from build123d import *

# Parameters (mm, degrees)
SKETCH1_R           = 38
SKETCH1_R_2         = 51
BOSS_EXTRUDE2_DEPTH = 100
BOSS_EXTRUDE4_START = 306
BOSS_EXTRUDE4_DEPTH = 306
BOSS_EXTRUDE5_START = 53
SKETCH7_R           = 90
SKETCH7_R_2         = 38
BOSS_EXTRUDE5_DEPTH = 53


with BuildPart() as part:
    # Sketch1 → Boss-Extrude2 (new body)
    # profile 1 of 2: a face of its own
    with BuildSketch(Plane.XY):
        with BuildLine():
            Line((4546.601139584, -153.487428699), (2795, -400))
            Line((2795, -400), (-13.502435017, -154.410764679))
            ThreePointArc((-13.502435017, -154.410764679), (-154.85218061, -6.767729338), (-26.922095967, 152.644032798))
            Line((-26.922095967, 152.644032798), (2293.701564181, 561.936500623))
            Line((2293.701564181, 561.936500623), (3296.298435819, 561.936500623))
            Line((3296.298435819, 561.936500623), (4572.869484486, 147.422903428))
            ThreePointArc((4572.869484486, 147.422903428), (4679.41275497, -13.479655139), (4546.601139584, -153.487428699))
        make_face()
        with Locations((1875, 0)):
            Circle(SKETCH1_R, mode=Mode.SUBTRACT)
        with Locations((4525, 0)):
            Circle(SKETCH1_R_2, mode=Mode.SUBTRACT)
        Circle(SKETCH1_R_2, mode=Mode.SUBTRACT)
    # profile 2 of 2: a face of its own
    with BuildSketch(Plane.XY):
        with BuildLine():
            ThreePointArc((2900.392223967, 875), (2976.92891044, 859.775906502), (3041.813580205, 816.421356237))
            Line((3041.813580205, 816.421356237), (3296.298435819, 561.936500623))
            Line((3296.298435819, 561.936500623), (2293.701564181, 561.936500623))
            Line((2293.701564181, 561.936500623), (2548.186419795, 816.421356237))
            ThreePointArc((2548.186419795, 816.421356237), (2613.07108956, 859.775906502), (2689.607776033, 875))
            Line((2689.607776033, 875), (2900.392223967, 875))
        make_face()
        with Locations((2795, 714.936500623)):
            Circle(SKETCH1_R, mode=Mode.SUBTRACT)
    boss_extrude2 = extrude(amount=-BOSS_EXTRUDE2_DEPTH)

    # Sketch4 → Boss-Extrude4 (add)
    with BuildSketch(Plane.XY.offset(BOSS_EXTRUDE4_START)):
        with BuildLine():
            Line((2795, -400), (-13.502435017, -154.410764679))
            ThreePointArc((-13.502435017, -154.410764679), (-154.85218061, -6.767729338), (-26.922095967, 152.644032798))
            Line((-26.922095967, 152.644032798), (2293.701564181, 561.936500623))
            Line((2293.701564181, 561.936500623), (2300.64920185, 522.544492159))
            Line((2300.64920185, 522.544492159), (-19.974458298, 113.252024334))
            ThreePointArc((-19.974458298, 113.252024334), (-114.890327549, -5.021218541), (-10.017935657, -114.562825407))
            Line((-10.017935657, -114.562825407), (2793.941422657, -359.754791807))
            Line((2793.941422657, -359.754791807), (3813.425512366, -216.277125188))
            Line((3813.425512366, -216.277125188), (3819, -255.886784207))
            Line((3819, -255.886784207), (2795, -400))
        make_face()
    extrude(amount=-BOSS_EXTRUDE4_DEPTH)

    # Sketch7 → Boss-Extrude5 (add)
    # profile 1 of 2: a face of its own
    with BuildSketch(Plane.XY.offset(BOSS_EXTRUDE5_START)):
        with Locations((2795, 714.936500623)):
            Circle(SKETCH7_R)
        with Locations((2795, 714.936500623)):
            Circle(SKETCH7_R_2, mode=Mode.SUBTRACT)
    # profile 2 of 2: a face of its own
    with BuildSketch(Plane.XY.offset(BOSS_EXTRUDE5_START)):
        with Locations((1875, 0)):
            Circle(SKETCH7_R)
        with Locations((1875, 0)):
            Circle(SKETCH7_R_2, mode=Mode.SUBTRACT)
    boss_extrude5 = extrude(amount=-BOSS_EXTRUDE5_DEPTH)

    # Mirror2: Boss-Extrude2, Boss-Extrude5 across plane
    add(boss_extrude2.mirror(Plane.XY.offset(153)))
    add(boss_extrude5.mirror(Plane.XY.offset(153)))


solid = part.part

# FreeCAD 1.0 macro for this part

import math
import FreeCAD as App
import Part
import Sketcher
from FreeCAD import Vector
Q = App.Units.Quantity

doc = App.newDocument("Part")
body = doc.addObject("PartDesign::Body", "Body")

# Sketch on XY plane
sketch1 = doc.addObject("Sketcher::SketchObject", "Sketch")
body.addObject(sketch1)
sketch1.AttachmentSupport = (doc.XY_Plane, [""])
sketch1.MapMode = "FlatFace"
sketch1.addGeometry([
    Part.LineSegment(Vector(2795, -400, 0), Vector(4547, -153, 0)),  # 0
    Part.ArcOfCircle(Part.Circle(Vector(4525, 0, 0), Vector(0, 0, 1), 155), math.radians(-82), math.radians(72)),  # 1
    Part.LineSegment(Vector(4573, 147, 0), Vector(3296, 562, 0)),  # 2
    Part.LineSegment(Vector(3296, 562, 0), Vector(3042, 816, 0)),  # 3
    Part.ArcOfCircle(Part.Circle(Vector(2900, 675, 0), Vector(0, 0, 1), 200), math.radians(45), math.radians(90)),  # 4
    Part.LineSegment(Vector(2900, 875, 0), Vector(2690, 875, 0)),  # 5
    Part.ArcOfCircle(Part.Circle(Vector(2690, 675, 0), Vector(0, 0, 1), 200), math.radians(90), math.radians(135)),  # 6
    Part.LineSegment(Vector(2548, 816, 0), Vector(2294, 562, 0)),  # 7
    Part.LineSegment(Vector(2294, 562, 0), Vector(-27, 153, 0)),  # 8
    Part.ArcOfCircle(Part.Circle(Vector(0, 0, 0), Vector(0, 0, 1), 155), math.radians(100), math.radians(265)),  # 9
    Part.LineSegment(Vector(-14, -154, 0), Vector(2795, -400, 0)),  # 10
    Part.Circle(Vector(4525, 0, 0), Vector(0, 0, 1), 51),  # 11
    Part.Circle(Vector(1875, 0, 0), Vector(0, 0, 1), 38),  # 12
    Part.Circle(Vector(0, 0, 0), Vector(0, 0, 1), 51),  # 13
    Part.Circle(Vector(2795, 715, 0), Vector(0, 0, 1), 38),  # 14
], False)
sketch1.addConstraint([
    Sketcher.Constraint("Tangent", 0, 2, 1, 1),
    Sketcher.Constraint("Tangent", 1, 2, 2, 1),
    Sketcher.Constraint("Coincident", 2, 2, 3, 1),
    Sketcher.Constraint("Tangent", 3, 2, 4, 1),
    Sketcher.Constraint("Tangent", 4, 2, 5, 1),
    Sketcher.Constraint("Tangent", 5, 2, 6, 1),
    Sketcher.Constraint("Tangent", 6, 2, 7, 1),
    Sketcher.Constraint("Coincident", 7, 2, 8, 1),
    Sketcher.Constraint("Tangent", 8, 2, 9, 1),
    Sketcher.Constraint("Tangent", 9, 2, 10, 1),
    Sketcher.Constraint("Coincident", 10, 2, 0, 1),
    Sketcher.Constraint("Horizontal", 5),
    Sketcher.Constraint("Coincident", 9, 3, -1, 1),
    Sketcher.Constraint("Coincident", 13, 3, -1, 1),
    Sketcher.Constraint("Coincident", 11, 3, 1, 3),
    Sketcher.Constraint("Equal", 4, 6),
    Sketcher.Constraint("Equal", 1, 9),
    Sketcher.Constraint("Equal", 11, 13),
    Sketcher.Constraint("Equal", 12, 14),
    Sketcher.Constraint("PointOnObject", 1, 3, -1),
    Sketcher.Constraint("PointOnObject", 12, 3, -1),
    Sketcher.Constraint("Perpendicular", 3, 7),
    Sketcher.Constraint("Horizontal", 3, 2, 6, 2),
    Sketcher.Constraint("Horizontal", 2, 2, 7, 2),
    Sketcher.Constraint("Vertical", 14, 3, 10, 2),
    Sketcher.Constraint("Diameter", 11, Q("102 mm")),
    Sketcher.Constraint("Diameter", 12, Q("76 mm")),
    Sketcher.Constraint("Radius", 1, Q("155 mm")),
    Sketcher.Constraint("Radius", 4, Q("200 mm")),
    Sketcher.Constraint("DistanceX", -1, 1, 1, 3, Q("4525 mm")),
    Sketcher.Constraint("DistanceY", -1, 1, 4, 3, Q("675 mm")),
    Sketcher.Constraint("DistanceX", -1, 1, 12, 3, Q("1875 mm")),
    Sketcher.Constraint("DistanceX", -1, 1, 14, 3, Q("2795 mm")),
    Sketcher.Constraint("DistanceY", 10, 2, -1, 1, Q("400 mm")),
    Sketcher.Constraint("DistanceY", 2, 2, 14, 3, Q("153 mm")),
    Sketcher.Constraint("DistanceX", 9, 2, 7, 2, Q("2307.203999 mm")),
    Sketcher.Constraint("DistanceY", -1, 1, 14, 3, Q("714.936501 mm")),
    Sketcher.Constraint("DistanceX", 5, 2, 5, 1, Q("210.784448 mm")),
])
pad1 = doc.addObject("PartDesign::Pad", "Pad")
body.addObject(pad1)
pad1.Profile = sketch1
pad1.Length = 100
pad1.Reversed = True

# Sketch on XY plane
sketch2 = doc.addObject("Sketcher::SketchObject", "Sketch001")
body.addObject(sketch2)
sketch2.AttachmentSupport = (doc.XY_Plane, [""])
sketch2.MapMode = "FlatFace"
sketch2.AttachmentOffset = App.Placement(Vector(0, 0, 306), App.Rotation())
sketch2.addGeometry([
    Part.LineSegment(Vector(-14, -154, 0), Vector(2795, -400, 0)),  # 0
    Part.LineSegment(Vector(2795, -400, 0), Vector(3819, -256, 0)),  # 1
    Part.LineSegment(Vector(3819, -256, 0), Vector(3813, -216, 0)),  # 2
    Part.LineSegment(Vector(3813, -216, 0), Vector(2794, -360, 0)),  # 3
    Part.LineSegment(Vector(2794, -360, 0), Vector(-10, -115, 0)),  # 4
    Part.ArcOfCircle(Part.Circle(Vector(0, 0, 0), Vector(0, 0, 1), 115), math.radians(100), math.radians(265)),  # 5
    Part.LineSegment(Vector(-20, 113, 0), Vector(2301, 523, 0)),  # 6
    Part.LineSegment(Vector(2301, 523, 0), Vector(2294, 562, 0)),  # 7
    Part.LineSegment(Vector(2294, 562, 0), Vector(-27, 153, 0)),  # 8
    Part.ArcOfCircle(Part.Circle(Vector(0, 0, 0), Vector(0, 0, 1), 155), math.radians(100), math.radians(265)),  # 9
], False)
sketch2.addConstraint([
    Sketcher.Constraint("Coincident", 0, 2, 1, 1),
    Sketcher.Constraint("Coincident", 1, 2, 2, 1),
    Sketcher.Constraint("Coincident", 2, 2, 3, 1),
    Sketcher.Constraint("Coincident", 3, 2, 4, 1),
    Sketcher.Constraint("Tangent", 4, 2, 5, 2),
    Sketcher.Constraint("Tangent", 5, 1, 6, 1),
    Sketcher.Constraint("Coincident", 6, 2, 7, 1),
    Sketcher.Constraint("Coincident", 7, 2, 8, 1),
    Sketcher.Constraint("Tangent", 8, 2, 9, 1),
    Sketcher.Constraint("Tangent", 9, 2, 0, 1),
    Sketcher.Constraint("Coincident", 5, 3, -1, 1),
    Sketcher.Constraint("Coincident", 9, 3, -1, 1),
    Sketcher.Constraint("Perpendicular", 1, 2),
    Sketcher.Constraint("Perpendicular", 2, 3),
    Sketcher.Constraint("Parallel", 0, 4),
    Sketcher.Constraint("Perpendicular", 6, 7),
    Sketcher.Constraint("Perpendicular", 7, 8),
    Sketcher.Constraint("Equal", 2, 7),
    Sketcher.Constraint("Radius", 5, Q("115 mm")),
    Sketcher.Constraint("Radius", 9, Q("155 mm")),
    Sketcher.Constraint("DistanceX", -1, 1, 0, 2, Q("2795 mm")),
    Sketcher.Constraint("DistanceY", 0, 2, -1, 1, Q("400 mm")),
    Sketcher.Constraint("DistanceX", -1, 1, 1, 2, Q("3819 mm")),
    Sketcher.Constraint("DistanceX", -1, 1, 6, 2, Q("2300.649202 mm")),
    Sketcher.Constraint("DistanceY", -1, 1, 7, 2, Q("561.936501 mm")),
    Sketcher.Constraint("DistanceY", 2, 2, 4, 2, Q("101.7143 mm")),
])
pad2 = doc.addObject("PartDesign::Pad", "Pad001")
body.addObject(pad2)
pad2.Profile = sketch2
pad2.Length = 306
pad2.Reversed = True

# Sketch on XY plane
sketch3 = doc.addObject("Sketcher::SketchObject", "Sketch002")
body.addObject(sketch3)
sketch3.AttachmentSupport = (doc.XY_Plane, [""])
sketch3.MapMode = "FlatFace"
sketch3.AttachmentOffset = App.Placement(Vector(0, 0, 53), App.Rotation())
sketch3.addGeometry([
    Part.Circle(Vector(2795, 715, 0), Vector(0, 0, 1), 90),
    Part.Circle(Vector(2795, 715, 0), Vector(0, 0, 1), 38),
    Part.Circle(Vector(1875, 0, 0), Vector(0, 0, 1), 90),
    Part.Circle(Vector(1875, 0, 0), Vector(0, 0, 1), 38),
], False)
sketch3.addConstraint([
    Sketcher.Constraint("Coincident", 1, 3, 0, 3),
    Sketcher.Constraint("Coincident", 3, 3, 2, 3),
    Sketcher.Constraint("Equal", 0, 2),
    Sketcher.Constraint("Equal", 1, 3),
    Sketcher.Constraint("PointOnObject", 2, 3, -1),
    Sketcher.Constraint("Diameter", 0, Q("180 mm")),
    Sketcher.Constraint("Diameter", 1, Q("76 mm")),
    Sketcher.Constraint("DistanceX", -1, 1, 0, 3, Q("2795 mm")),
    Sketcher.Constraint("DistanceX", -1, 1, 2, 3, Q("1875 mm")),
    Sketcher.Constraint("DistanceY", -1, 1, 0, 3, Q("714.936501 mm")),
])
pad3 = doc.addObject("PartDesign::Pad", "Pad002")
body.addObject(pad3)
pad3.Profile = sketch3
pad3.Length = 53
pad3.Reversed = True
doc.recompute()

datumplane = doc.addObject("PartDesign::Plane", "DatumPlane")
body.addObject(datumplane)
datumplane.AttachmentSupport = (doc.XY_Plane, [""])
datumplane.MapMode = "FlatFace"
datumplane.AttachmentOffset = App.Placement(Vector(0, 0, 153), App.Rotation())
mirrored = doc.addObject("PartDesign::Mirrored", "Mirrored")
body.addObject(mirrored)
mirrored.Originals = [pad1, pad3]
mirrored.MirrorPlane = (datumplane, [""])
body.Tip = mirrored

doc.recompute()
